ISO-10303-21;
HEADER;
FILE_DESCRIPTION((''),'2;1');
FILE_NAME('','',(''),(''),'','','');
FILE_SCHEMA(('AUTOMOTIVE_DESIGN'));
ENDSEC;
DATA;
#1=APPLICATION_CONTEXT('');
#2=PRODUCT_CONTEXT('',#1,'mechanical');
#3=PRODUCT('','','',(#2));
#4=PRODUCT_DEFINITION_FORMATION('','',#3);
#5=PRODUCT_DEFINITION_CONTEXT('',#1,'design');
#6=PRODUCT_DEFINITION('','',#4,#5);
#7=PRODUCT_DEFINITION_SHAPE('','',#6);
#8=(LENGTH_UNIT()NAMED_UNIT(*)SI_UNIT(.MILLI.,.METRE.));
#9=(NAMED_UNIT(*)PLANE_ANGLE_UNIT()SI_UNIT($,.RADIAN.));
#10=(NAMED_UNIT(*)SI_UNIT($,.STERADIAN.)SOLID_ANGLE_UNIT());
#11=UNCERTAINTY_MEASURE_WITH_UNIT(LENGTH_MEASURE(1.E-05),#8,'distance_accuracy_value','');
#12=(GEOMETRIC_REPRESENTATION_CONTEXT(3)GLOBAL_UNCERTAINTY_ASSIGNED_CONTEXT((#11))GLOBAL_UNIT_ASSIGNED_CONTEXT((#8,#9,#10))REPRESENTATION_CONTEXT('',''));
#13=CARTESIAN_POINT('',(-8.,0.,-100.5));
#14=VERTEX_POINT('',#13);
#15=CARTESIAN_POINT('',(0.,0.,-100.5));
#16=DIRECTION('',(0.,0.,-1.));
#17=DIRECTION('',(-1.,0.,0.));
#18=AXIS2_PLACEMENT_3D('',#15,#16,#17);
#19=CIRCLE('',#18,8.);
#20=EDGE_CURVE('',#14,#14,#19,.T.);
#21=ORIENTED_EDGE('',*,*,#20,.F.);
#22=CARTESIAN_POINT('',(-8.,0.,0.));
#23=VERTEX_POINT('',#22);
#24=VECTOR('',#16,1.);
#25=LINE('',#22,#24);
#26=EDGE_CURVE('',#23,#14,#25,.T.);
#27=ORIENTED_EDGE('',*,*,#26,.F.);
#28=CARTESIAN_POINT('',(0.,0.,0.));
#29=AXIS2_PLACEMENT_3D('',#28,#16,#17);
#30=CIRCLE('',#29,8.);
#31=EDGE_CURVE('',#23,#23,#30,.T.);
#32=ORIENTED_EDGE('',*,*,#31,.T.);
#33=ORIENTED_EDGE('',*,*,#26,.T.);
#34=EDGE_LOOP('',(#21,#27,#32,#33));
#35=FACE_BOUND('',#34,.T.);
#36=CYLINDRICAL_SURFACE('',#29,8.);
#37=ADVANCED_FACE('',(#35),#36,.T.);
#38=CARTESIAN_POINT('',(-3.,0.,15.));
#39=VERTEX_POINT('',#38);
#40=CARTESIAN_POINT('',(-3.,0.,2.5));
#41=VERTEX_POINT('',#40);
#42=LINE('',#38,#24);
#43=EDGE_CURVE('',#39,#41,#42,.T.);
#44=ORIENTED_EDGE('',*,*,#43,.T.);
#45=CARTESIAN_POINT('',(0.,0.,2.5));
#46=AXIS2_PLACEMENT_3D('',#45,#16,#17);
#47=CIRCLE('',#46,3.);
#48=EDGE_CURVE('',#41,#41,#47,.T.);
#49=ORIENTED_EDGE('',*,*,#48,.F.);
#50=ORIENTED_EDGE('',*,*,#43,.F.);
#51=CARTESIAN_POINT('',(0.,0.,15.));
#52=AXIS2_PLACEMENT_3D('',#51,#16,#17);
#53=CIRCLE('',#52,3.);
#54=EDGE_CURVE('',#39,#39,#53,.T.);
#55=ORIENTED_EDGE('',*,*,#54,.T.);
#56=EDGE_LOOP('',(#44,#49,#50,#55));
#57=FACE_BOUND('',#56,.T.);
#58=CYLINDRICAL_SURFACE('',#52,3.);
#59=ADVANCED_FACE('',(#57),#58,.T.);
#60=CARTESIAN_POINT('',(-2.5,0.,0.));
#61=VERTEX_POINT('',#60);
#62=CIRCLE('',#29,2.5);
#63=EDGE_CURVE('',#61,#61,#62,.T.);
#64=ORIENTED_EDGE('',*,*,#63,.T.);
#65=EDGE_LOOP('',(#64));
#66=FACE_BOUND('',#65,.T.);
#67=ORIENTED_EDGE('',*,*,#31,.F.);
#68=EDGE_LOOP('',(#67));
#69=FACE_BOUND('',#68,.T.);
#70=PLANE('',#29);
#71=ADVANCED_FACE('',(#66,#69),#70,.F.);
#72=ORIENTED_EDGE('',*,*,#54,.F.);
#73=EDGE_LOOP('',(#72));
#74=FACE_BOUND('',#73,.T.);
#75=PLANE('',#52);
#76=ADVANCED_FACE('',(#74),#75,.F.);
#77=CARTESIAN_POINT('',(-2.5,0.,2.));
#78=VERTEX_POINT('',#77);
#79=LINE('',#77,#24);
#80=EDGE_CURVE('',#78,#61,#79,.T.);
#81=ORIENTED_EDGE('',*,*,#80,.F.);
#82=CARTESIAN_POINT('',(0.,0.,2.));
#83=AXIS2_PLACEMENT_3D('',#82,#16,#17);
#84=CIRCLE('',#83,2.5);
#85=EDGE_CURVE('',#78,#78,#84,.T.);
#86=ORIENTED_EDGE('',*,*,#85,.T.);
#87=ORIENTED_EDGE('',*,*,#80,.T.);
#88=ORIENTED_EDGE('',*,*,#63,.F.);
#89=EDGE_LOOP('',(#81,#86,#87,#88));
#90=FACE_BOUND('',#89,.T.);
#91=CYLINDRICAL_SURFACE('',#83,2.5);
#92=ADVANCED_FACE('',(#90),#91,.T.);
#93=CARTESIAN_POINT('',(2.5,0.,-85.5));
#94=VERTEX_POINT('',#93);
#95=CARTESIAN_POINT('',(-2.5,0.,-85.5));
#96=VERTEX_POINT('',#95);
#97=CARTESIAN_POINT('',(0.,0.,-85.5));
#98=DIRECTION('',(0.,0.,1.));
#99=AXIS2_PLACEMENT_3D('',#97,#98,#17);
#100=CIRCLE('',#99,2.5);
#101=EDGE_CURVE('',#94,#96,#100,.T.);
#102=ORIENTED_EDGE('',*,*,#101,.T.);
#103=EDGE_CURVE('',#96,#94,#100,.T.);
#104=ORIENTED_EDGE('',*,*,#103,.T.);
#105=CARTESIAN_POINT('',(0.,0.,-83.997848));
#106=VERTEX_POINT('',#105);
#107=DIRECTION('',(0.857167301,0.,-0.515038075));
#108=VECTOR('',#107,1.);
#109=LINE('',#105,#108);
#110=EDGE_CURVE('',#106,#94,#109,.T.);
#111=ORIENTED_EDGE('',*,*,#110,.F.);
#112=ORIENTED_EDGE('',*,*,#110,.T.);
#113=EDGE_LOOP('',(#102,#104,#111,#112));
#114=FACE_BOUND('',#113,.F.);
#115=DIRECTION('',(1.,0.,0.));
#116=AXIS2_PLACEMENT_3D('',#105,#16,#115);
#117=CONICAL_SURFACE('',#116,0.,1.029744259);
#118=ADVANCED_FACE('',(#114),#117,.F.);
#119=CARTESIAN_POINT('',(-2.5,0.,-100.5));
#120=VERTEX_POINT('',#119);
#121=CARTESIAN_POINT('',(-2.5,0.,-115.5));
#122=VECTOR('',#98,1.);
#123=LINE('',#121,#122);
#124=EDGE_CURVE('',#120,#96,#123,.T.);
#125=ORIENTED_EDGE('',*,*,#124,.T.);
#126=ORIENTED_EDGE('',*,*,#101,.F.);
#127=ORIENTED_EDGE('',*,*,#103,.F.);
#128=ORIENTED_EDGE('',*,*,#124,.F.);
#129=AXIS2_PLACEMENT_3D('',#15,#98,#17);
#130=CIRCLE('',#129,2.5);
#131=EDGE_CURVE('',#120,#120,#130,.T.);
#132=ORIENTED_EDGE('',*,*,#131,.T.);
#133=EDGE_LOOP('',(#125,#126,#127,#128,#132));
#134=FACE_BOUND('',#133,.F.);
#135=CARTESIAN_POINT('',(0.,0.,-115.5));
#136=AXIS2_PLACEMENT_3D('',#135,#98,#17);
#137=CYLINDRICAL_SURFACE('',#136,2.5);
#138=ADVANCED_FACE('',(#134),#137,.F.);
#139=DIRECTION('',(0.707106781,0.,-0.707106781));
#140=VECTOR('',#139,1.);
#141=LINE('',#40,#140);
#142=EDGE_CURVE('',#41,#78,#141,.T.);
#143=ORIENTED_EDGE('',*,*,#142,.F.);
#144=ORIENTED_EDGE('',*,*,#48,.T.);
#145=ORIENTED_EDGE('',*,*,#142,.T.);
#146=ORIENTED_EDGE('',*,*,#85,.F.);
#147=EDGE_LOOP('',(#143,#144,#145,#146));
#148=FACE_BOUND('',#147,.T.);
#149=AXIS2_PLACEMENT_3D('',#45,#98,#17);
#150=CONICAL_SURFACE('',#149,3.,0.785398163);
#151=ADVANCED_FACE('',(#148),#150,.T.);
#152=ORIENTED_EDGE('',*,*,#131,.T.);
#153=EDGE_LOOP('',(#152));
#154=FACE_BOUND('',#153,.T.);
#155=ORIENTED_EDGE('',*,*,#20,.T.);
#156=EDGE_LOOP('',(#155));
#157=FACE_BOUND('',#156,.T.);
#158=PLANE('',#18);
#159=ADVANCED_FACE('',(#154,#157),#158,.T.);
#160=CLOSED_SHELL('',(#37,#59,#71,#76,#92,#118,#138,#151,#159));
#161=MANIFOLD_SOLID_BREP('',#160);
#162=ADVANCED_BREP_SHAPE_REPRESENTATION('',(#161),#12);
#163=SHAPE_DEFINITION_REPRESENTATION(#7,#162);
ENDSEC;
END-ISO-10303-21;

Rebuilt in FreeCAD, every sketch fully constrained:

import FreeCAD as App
import Part
import Sketcher

V = App.Vector
Q = App.Units.Quantity


def add_polygon(sketch, points):
    """Adds a closed chain of lines whose ends are joined by coincident constraints."""
    first, n = sketch.GeometryCount, len(points)
    for a, b in zip(points, points[1:] + points[:1]):
        sketch.addGeometry(Part.LineSegment(App.Vector(*a, 0), App.Vector(*b, 0)), False)
    for i in range(n):
        sketch.addConstraint(Sketcher.Constraint("Coincident", first + i, 2, first + (i + 1) % n, 1))

doc = App.newDocument("Part")
body = doc.addObject("PartDesign::Body", "Body")

# Sketch on XZ plane
sketch1 = doc.addObject("Sketcher::SketchObject", "Sketch")
body.addObject(sketch1)
sketch1.AttachmentSupport = (doc.XZ_Plane, [""])
sketch1.MapMode = "FlatFace"
add_polygon(sketch1, [(0, -100.5), (0, 15), (-3, 15), (-3, 2.5), (-2.5, 2), (-2.5, 0), (-8, 0), (-8, -100.5)])  # lines 0-7
sketch1.addConstraint(Sketcher.Constraint("Vertical", 0))
sketch1.addConstraint(Sketcher.Constraint("Horizontal", 1))
sketch1.addConstraint(Sketcher.Constraint("Vertical", 2))
sketch1.addConstraint(Sketcher.Constraint("Vertical", 4))
sketch1.addConstraint(Sketcher.Constraint("Horizontal", 5))
sketch1.addConstraint(Sketcher.Constraint("Vertical", 6))
sketch1.addConstraint(Sketcher.Constraint("Horizontal", 7))
sketch1.addConstraint(Sketcher.Constraint("PointOnObject", 0, 2, -2))
sketch1.addConstraint(Sketcher.Constraint("PointOnObject", 4, 2, -1))
sketch1.addConstraint(Sketcher.Constraint("DistanceX", 1, 2, 1, 1, 3.0))
sketch1.addConstraint(Sketcher.Constraint("DistanceX", 7, 1, 7, 2, 8.0))
sketch1.addConstraint(Sketcher.Constraint("DistanceY", 4, 2, 4, 1, 2.0))
sketch1.addConstraint(Sketcher.Constraint("Angle", 3, Q("-45 deg")))
sketch1.addConstraint(Sketcher.Constraint("DistanceX", 5, 2, 5, 1, 5.5))
sketch1.addConstraint(Sketcher.Constraint("DistanceY", 0, 1, 0, 2, 115.5))
sketch1.addConstraint(Sketcher.Constraint("DistanceY", 2, 2, 2, 1, 12.5))
revolution = doc.addObject("PartDesign::Revolution", "Revolution")
body.addObject(revolution)
revolution.Profile = sketch1
revolution.ReferenceAxis = (sketch1, ["V_Axis"])
revolution.Angle = 360

# Sketch on XY plane
sketch2 = doc.addObject("Sketcher::SketchObject", "Sketch001")
body.addObject(sketch2)
sketch2.AttachmentSupport = (doc.XY_Plane, [""])
sketch2.MapMode = "FlatFace"
sketch2.AttachmentOffset = App.Placement(V(0, 0, -100.5), App.Rotation())
sketch2.addGeometry(Part.Circle(V(0, 0, 0), V(0, 0, 1), 2.5), False)
sketch2.addConstraint(Sketcher.Constraint("Coincident", 0, 3, -1, 1))
sketch2.addConstraint(Sketcher.Constraint("Diameter", 0, 5.0))
doc.recompute()
hole = doc.addObject("PartDesign::Hole", "Hole")
body.addObject(hole)
hole.Profile = sketch2
hole.ThreadType = "None"
hole.Diameter = 5
hole.DepthType = "Dimension"
hole.Depth = 15
hole.DrillPoint = "Angled"
hole.DrillPointAngle = 118
hole.Reversed = True

doc.recompute()
